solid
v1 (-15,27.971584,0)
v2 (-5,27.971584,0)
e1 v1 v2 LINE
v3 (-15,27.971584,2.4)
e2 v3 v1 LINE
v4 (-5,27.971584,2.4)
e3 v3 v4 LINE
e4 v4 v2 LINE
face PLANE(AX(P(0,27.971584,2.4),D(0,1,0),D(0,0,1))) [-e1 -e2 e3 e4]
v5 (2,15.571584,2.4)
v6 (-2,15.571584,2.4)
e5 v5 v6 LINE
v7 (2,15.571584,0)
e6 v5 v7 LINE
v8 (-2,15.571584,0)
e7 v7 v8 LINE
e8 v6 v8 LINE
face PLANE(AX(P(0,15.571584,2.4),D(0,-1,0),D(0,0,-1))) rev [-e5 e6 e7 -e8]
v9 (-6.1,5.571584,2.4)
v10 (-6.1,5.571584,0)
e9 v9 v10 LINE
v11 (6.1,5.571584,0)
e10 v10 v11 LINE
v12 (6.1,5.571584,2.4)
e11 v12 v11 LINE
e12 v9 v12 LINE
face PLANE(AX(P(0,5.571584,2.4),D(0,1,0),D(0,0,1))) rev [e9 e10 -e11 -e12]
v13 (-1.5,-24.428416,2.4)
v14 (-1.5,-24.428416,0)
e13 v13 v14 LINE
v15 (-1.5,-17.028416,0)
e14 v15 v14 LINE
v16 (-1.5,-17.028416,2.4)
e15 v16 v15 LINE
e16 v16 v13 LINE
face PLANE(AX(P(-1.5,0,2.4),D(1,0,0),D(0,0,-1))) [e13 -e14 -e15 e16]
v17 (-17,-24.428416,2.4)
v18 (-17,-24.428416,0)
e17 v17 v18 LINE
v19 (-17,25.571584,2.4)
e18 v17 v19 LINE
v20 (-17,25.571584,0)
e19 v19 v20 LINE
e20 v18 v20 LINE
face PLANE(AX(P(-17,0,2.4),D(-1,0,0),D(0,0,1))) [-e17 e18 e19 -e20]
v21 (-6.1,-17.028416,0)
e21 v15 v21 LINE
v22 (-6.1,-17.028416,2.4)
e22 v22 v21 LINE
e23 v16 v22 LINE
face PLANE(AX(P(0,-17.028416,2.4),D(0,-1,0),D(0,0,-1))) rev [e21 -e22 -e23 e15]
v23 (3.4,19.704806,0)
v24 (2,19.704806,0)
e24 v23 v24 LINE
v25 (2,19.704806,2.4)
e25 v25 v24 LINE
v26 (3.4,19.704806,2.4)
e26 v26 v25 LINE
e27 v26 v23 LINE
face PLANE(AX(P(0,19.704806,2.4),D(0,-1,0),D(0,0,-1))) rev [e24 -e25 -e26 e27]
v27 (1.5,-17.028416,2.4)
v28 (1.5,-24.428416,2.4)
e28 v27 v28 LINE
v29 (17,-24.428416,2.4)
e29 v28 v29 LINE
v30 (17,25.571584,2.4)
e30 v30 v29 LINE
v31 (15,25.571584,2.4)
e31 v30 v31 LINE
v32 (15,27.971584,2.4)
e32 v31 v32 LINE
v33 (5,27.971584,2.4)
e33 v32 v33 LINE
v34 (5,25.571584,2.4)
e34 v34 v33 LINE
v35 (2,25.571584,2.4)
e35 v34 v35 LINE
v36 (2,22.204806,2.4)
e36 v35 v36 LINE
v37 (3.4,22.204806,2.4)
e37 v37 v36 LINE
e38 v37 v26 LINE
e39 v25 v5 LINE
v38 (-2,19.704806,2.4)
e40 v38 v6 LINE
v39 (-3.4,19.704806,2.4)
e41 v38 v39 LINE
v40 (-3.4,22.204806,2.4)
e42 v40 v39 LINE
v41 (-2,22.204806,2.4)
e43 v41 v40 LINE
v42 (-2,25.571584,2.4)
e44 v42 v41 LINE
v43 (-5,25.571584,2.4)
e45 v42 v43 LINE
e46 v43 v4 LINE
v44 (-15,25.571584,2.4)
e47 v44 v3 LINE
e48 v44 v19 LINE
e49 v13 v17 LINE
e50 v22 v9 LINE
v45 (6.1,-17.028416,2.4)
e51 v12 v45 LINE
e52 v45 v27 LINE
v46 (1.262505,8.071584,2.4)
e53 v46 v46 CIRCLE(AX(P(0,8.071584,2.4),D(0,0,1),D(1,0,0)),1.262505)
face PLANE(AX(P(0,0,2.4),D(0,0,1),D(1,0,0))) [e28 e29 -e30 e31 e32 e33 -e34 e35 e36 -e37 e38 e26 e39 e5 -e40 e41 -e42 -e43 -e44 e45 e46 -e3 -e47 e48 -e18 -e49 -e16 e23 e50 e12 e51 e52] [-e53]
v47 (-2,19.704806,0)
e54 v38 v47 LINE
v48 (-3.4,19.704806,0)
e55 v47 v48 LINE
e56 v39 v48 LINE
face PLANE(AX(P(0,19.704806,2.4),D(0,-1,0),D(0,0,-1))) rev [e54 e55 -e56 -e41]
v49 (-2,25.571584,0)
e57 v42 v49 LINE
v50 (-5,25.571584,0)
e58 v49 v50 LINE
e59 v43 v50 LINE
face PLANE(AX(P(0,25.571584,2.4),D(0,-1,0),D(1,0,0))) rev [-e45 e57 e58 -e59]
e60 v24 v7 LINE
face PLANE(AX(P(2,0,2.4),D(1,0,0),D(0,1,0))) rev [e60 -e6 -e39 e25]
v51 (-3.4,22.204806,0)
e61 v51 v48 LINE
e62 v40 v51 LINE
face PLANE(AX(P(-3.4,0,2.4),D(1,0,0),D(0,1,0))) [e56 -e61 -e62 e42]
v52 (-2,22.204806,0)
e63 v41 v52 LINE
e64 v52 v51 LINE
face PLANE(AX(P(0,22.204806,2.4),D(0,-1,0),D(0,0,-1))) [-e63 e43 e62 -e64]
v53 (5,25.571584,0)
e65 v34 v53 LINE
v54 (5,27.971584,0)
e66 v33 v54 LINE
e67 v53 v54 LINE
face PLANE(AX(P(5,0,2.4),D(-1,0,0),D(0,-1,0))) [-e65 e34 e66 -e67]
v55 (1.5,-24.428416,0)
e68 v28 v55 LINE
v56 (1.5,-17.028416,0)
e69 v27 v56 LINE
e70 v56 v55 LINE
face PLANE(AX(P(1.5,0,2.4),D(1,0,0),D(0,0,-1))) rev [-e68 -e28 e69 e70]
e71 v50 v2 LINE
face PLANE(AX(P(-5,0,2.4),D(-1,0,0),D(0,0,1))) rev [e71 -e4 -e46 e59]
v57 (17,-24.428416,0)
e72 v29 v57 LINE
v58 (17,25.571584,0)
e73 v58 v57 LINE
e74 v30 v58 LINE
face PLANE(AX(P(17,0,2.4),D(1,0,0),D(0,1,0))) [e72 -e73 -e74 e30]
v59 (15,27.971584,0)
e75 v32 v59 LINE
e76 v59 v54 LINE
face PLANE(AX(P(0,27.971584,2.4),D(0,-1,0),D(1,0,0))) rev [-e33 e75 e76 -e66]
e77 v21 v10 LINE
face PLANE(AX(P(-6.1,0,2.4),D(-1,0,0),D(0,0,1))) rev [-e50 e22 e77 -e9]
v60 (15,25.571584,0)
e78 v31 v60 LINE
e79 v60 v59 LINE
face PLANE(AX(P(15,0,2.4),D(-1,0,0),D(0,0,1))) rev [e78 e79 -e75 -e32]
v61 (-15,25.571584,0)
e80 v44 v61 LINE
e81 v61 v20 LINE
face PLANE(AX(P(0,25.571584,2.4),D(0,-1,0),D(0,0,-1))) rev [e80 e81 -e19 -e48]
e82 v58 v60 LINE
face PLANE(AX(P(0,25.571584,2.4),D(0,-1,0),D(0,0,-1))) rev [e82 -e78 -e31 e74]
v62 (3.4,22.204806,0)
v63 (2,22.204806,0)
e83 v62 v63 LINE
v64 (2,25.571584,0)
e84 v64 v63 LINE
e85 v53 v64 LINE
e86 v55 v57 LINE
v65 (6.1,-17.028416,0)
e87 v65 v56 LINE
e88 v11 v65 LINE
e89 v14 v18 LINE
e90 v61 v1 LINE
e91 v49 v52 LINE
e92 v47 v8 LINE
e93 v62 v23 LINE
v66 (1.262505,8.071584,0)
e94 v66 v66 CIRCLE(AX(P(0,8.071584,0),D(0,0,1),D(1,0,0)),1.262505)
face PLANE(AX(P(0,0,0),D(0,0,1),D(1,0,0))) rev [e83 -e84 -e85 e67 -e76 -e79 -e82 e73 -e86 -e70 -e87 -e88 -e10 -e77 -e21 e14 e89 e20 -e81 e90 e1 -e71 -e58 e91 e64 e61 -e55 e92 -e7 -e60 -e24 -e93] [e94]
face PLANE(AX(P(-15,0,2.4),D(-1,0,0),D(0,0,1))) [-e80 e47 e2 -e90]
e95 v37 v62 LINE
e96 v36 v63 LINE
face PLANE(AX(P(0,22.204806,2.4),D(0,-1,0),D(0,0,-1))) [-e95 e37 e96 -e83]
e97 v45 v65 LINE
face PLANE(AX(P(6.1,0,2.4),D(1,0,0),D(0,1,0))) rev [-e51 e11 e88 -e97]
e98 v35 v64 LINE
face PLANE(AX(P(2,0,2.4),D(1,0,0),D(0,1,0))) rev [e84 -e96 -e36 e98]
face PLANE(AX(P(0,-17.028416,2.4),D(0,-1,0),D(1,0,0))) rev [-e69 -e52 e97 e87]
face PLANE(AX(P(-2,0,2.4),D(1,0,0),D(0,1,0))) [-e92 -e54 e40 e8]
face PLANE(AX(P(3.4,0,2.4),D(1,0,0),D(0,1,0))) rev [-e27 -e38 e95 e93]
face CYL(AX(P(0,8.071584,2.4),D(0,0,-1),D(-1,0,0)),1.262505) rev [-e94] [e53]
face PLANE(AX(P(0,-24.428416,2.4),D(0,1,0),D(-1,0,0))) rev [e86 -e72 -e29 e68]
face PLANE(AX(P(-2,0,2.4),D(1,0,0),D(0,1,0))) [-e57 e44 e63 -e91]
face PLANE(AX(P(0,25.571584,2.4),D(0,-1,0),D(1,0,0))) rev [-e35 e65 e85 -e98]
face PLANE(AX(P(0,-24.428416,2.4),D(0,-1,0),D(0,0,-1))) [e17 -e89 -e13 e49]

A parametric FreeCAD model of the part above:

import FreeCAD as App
import Part
import Sketcher

doc = App.newDocument("Part")
params = doc.addObject("Spreadsheet::Sheet", "Params")
for row, (alias, value) in enumerate([
    ("sketch1_width", "2 mm"),
    ("sketch1_width2", "10 mm"),
    ("sketch1_width3", "3 mm"),
    ("sketch1_width4", "4 mm"),
    ("sketch1_height", "50 mm"),
    ("pad1_length", "2.4 mm"),
], start=1):
    params.set(f"A{row}", alias)
    params.set(f"B{row}", "=" + value)
    params.setAlias(f"B{row}", alias)

body = doc.addObject("PartDesign::Body", "Body")

sketch1 = body.newObject("Sketcher::SketchObject", "Sketch")
sketch1.AttachmentSupport = (doc.getObject("XY_Plane"), [""])
sketch1.MapMode = "FlatFace"
sketch1.addGeometry(Part.LineSegment(App.Vector(17, 25.6, 0), App.Vector(15, 25.6, 0)), False)
sketch1.addGeometry(Part.LineSegment(App.Vector(15, 25.6, 0), App.Vector(15, 28, 0)), False)
sketch1.addGeometry(Part.LineSegment(App.Vector(15, 28, 0), App.Vector(5, 28, 0)), False)
sketch1.addGeometry(Part.LineSegment(App.Vector(5, 28, 0), App.Vector(5, 25.6, 0)), False)
sketch1.addGeometry(Part.LineSegment(App.Vector(5, 25.6, 0), App.Vector(2, 25.6, 0)), False)
sketch1.addGeometry(Part.LineSegment(App.Vector(2, 25.6, 0), App.Vector(2, 22.2, 0)), False)
sketch1.addGeometry(Part.LineSegment(App.Vector(2, 22.2, 0), App.Vector(3.4, 22.2, 0)), False)
sketch1.addGeometry(Part.LineSegment(App.Vector(3.4, 22.2, 0), App.Vector(3.4, 19.7, 0)), False)
sketch1.addGeometry(Part.LineSegment(App.Vector(3.4, 19.7, 0), App.Vector(2, 19.7, 0)), False)
sketch1.addGeometry(Part.LineSegment(App.Vector(2, 19.7, 0), App.Vector(2, 15.6, 0)), False)
sketch1.addGeometry(Part.LineSegment(App.Vector(2, 15.6, 0), App.Vector(-2, 15.6, 0)), False)
sketch1.addGeometry(Part.LineSegment(App.Vector(-2, 15.6, 0), App.Vector(-2, 19.7, 0)), False)
sketch1.addGeometry(Part.LineSegment(App.Vector(-2, 19.7, 0), App.Vector(-3.4, 19.7, 0)), False)
sketch1.addGeometry(Part.LineSegment(App.Vector(-3.4, 19.7, 0), App.Vector(-3.4, 22.2, 0)), False)
sketch1.addGeometry(Part.LineSegment(App.Vector(-3.4, 22.2, 0), App.Vector(-2, 22.2, 0)), False)
sketch1.addGeometry(Part.LineSegment(App.Vector(-2, 22.2, 0), App.Vector(-2, 25.6, 0)), False)
sketch1.addGeometry(Part.LineSegment(App.Vector(-2, 25.6, 0), App.Vector(-5, 25.6, 0)), False)
sketch1.addGeometry(Part.LineSegment(App.Vector(-5, 25.6, 0), App.Vector(-5, 28, 0)), False)
sketch1.addGeometry(Part.LineSegment(App.Vector(-5, 28, 0), App.Vector(-15, 28, 0)), False)
sketch1.addGeometry(Part.LineSegment(App.Vector(-15, 28, 0), App.Vector(-15, 25.6, 0)), False)
sketch1.addGeometry(Part.LineSegment(App.Vector(-15, 25.6, 0), App.Vector(-17, 25.6, 0)), False)
sketch1.addGeometry(Part.LineSegment(App.Vector(-17, 25.6, 0), App.Vector(-17, -24.4, 0)), False)
sketch1.addGeometry(Part.LineSegment(App.Vector(-17, -24.4, 0), App.Vector(-1.5, -24.4, 0)), False)
sketch1.addGeometry(Part.LineSegment(App.Vector(-1.5, -24.4, 0), App.Vector(-1.5, -17, 0)), False)
sketch1.addGeometry(Part.LineSegment(App.Vector(-1.5, -17, 0), App.Vector(-6.1, -17, 0)), False)
sketch1.addGeometry(Part.LineSegment(App.Vector(-6.1, -17, 0), App.Vector(-6.1, 5.6, 0)), False)
sketch1.addGeometry(Part.LineSegment(App.Vector(-6.1, 5.6, 0), App.Vector(6.1, 5.6, 0)), False)
sketch1.addGeometry(Part.LineSegment(App.Vector(6.1, 5.6, 0), App.Vector(6.1, -17, 0)), False)
sketch1.addGeometry(Part.LineSegment(App.Vector(6.1, -17, 0), App.Vector(1.5, -17, 0)), False)
sketch1.addGeometry(Part.LineSegment(App.Vector(1.5, -17, 0), App.Vector(1.5, -24.4, 0)), False)
sketch1.addGeometry(Part.LineSegment(App.Vector(1.5, -24.4, 0), App.Vector(17, -24.4, 0)), False)
sketch1.addGeometry(Part.LineSegment(App.Vector(17, -24.4, 0), App.Vector(17, 25.6, 0)), False)
sketch1.addGeometry(Part.Circle(App.Vector(0, 8.1, 0), App.Vector(0, 0, 1), 1.3), False)
sketch1.addConstraint(Sketcher.Constraint("Coincident", 0, 2, 1, 1))
sketch1.addConstraint(Sketcher.Constraint("Coincident", 1, 2, 2, 1))
sketch1.addConstraint(Sketcher.Constraint("Coincident", 2, 2, 3, 1))
sketch1.addConstraint(Sketcher.Constraint("Coincident", 3, 2, 4, 1))
sketch1.addConstraint(Sketcher.Constraint("Coincident", 4, 2, 5, 1))
sketch1.addConstraint(Sketcher.Constraint("Coincident", 5, 2, 6, 1))
sketch1.addConstraint(Sketcher.Constraint("Coincident", 6, 2, 7, 1))
sketch1.addConstraint(Sketcher.Constraint("Coincident", 7, 2, 8, 1))
sketch1.addConstraint(Sketcher.Constraint("Coincident", 8, 2, 9, 1))
sketch1.addConstraint(Sketcher.Constraint("Coincident", 9, 2, 10, 1))
sketch1.addConstraint(Sketcher.Constraint("Coincident", 10, 2, 11, 1))
sketch1.addConstraint(Sketcher.Constraint("Coincident", 11, 2, 12, 1))
sketch1.addConstraint(Sketcher.Constraint("Coincident", 12, 2, 13, 1))
sketch1.addConstraint(Sketcher.Constraint("Coincident", 13, 2, 14, 1))
sketch1.addConstraint(Sketcher.Constraint("Coincident", 14, 2, 15, 1))
sketch1.addConstraint(Sketcher.Constraint("Coincident", 15, 2, 16, 1))
sketch1.addConstraint(Sketcher.Constraint("Coincident", 16, 2, 17, 1))
sketch1.addConstraint(Sketcher.Constraint("Coincident", 17, 2, 18, 1))
sketch1.addConstraint(Sketcher.Constraint("Coincident", 18, 2, 19, 1))
sketch1.addConstraint(Sketcher.Constraint("Coincident", 19, 2, 20, 1))
sketch1.addConstraint(Sketcher.Constraint("Coincident", 20, 2, 21, 1))
sketch1.addConstraint(Sketcher.Constraint("Coincident", 21, 2, 22, 1))
sketch1.addConstraint(Sketcher.Constraint("Coincident", 22, 2, 23, 1))
sketch1.addConstraint(Sketcher.Constraint("Coincident", 23, 2, 24, 1))
sketch1.addConstraint(Sketcher.Constraint("Coincident", 24, 2, 25, 1))
sketch1.addConstraint(Sketcher.Constraint("Coincident", 25, 2, 26, 1))
sketch1.addConstraint(Sketcher.Constraint("Coincident", 26, 2, 27, 1))
sketch1.addConstraint(Sketcher.Constraint("Coincident", 27, 2, 28, 1))
sketch1.addConstraint(Sketcher.Constraint("Coincident", 28, 2, 29, 1))
sketch1.addConstraint(Sketcher.Constraint("Coincident", 29, 2, 30, 1))
sketch1.addConstraint(Sketcher.Constraint("Coincident", 30, 2, 31, 1))
sketch1.addConstraint(Sketcher.Constraint("Coincident", 31, 2, 0, 1))
sketch1.addConstraint(Sketcher.Constraint("Horizontal", 0))
sketch1.addConstraint(Sketcher.Constraint("Vertical", 1))
sketch1.addConstraint(Sketcher.Constraint("Horizontal", 2))
sketch1.addConstraint(Sketcher.Constraint("Vertical", 3))
sketch1.addConstraint(Sketcher.Constraint("Horizontal", 4))
sketch1.addConstraint(Sketcher.Constraint("Vertical", 5))
sketch1.addConstraint(Sketcher.Constraint("Horizontal", 6))
sketch1.addConstraint(Sketcher.Constraint("Vertical", 7))
sketch1.addConstraint(Sketcher.Constraint("Horizontal", 8))
sketch1.addConstraint(Sketcher.Constraint("Vertical", 9))
sketch1.addConstraint(Sketcher.Constraint("Horizontal", 10))
sketch1.addConstraint(Sketcher.Constraint("Vertical", 11))
sketch1.addConstraint(Sketcher.Constraint("Horizontal", 12))
sketch1.addConstraint(Sketcher.Constraint("Vertical", 13))
sketch1.addConstraint(Sketcher.Constraint("Horizontal", 14))
sketch1.addConstraint(Sketcher.Constraint("Vertical", 15))
sketch1.addConstraint(Sketcher.Constraint("Horizontal", 16))
sketch1.addConstraint(Sketcher.Constraint("Vertical", 17))
sketch1.addConstraint(Sketcher.Constraint("Horizontal", 18))
sketch1.addConstraint(Sketcher.Constraint("Vertical", 19))
sketch1.addConstraint(Sketcher.Constraint("Horizontal", 20))
sketch1.addConstraint(Sketcher.Constraint("Vertical", 21))
sketch1.addConstraint(Sketcher.Constraint("Horizontal", 22))
sketch1.addConstraint(Sketcher.Constraint("Vertical", 23))
sketch1.addConstraint(Sketcher.Constraint("Horizontal", 24))
sketch1.addConstraint(Sketcher.Constraint("Vertical", 25))
sketch1.addConstraint(Sketcher.Constraint("Horizontal", 26))
sketch1.addConstraint(Sketcher.Constraint("Vertical", 27))
sketch1.addConstraint(Sketcher.Constraint("Horizontal", 28))
sketch1.addConstraint(Sketcher.Constraint("Vertical", 29))
sketch1.addConstraint(Sketcher.Constraint("Horizontal", 30))
sketch1.addConstraint(Sketcher.Constraint("Vertical", 31))
sketch1.addConstraint(Sketcher.Constraint("Symmetric", 8, 2, 11, 2, -2))
sketch1.addConstraint(Sketcher.Constraint("Symmetric", 6, 2, 13, 2, -2))
sketch1.addConstraint(Sketcher.Constraint("Symmetric", 4, 2, 15, 2, -2))
sketch1.addConstraint(Sketcher.Constraint("Symmetric", 2, 2, 17, 2, -2))
sketch1.addConstraint(Sketcher.Constraint("Symmetric", 0, 2, 19, 2, -2))
sketch1.addConstraint(Sketcher.Constraint("Symmetric", 24, 2, 27, 2, -2))
sketch1.addConstraint(Sketcher.Constraint("Symmetric", 22, 2, 29, 2, -2))
sketch1.addConstraint(Sketcher.Constraint("PointOnObject", 32, 3, -2))
sketch1.addConstraint(Sketcher.Constraint("Horizontal", 0, 2, 3, 2))
sketch1.addConstraint(Sketcher.Constraint("Vertical", 5, 2, 8, 2))
sketch1.addConstraint(Sketcher.Constraint("Equal", 0, 20))
sketch1.addConstraint(Sketcher.Constraint("DistanceX", 0, 2, 0, 1, 2.0))
sketch1.addConstraint(Sketcher.Constraint("DistanceX", 2, 2, 2, 1, 10.0))
sketch1.addConstraint(Sketcher.Constraint("DistanceX", 4, 2, 4, 1, 3.0))
sketch1.addConstraint(Sketcher.Constraint("DistanceX", 10, 2, 10, 1, 4.0))
sketch1.addConstraint(Sketcher.Constraint("DistanceY", 21, 2, 21, 1, 50.0))
sketch1.addConstraint(Sketcher.Constraint("DistanceX", 6, 1, 6, 2, 1.4))
sketch1.addConstraint(Sketcher.Constraint("DistanceX", 22, 1, 22, 2, 15.5))
sketch1.addConstraint(Sketcher.Constraint("DistanceX", 24, 2, 24, 1, 4.6))
sketch1.addConstraint(Sketcher.Constraint("DistanceY", 1, 1, 1, 2, 2.4))
sketch1.addConstraint(Sketcher.Constraint("DistanceY", 7, 2, 7, 1, 2.5))
sketch1.addConstraint(Sketcher.Constraint("DistanceY", 23, 1, 23, 2, 7.4))
sketch1.addConstraint(Sketcher.Constraint("DistanceY", 25, 1, 25, 2, 22.6))
sketch1.addConstraint(Sketcher.Constraint("DistanceY", 21, 2, 10, 2, 40.0))
sketch1.addConstraint(Sketcher.Constraint("DistanceY", 32, 3, 0, 2, 17.5))
sketch1.addConstraint(Sketcher.Constraint("Diameter", 32, 2.52501))
sketch1.addConstraint(Sketcher.Constraint("DistanceY", 5, 2, 5, 1, 3.366778))
sketch1.addConstraint(Sketcher.Constraint("DistanceY", -1, 1, 32, 3, 8.071584))
sketch1.setExpression("Constraints[75]", "Params.sketch1_width")
sketch1.setExpression("Constraints[76]", "Params.sketch1_width2")
sketch1.setExpression("Constraints[77]", "Params.sketch1_width3")
sketch1.setExpression("Constraints[78]", "Params.sketch1_width4")
sketch1.setExpression("Constraints[79]", "Params.sketch1_height")
pad1 = body.newObject("PartDesign::Pad", "Pad")
pad1.Profile = sketch1
pad1.setExpression("Length", "Params.pad1_length")

doc.recompute()
